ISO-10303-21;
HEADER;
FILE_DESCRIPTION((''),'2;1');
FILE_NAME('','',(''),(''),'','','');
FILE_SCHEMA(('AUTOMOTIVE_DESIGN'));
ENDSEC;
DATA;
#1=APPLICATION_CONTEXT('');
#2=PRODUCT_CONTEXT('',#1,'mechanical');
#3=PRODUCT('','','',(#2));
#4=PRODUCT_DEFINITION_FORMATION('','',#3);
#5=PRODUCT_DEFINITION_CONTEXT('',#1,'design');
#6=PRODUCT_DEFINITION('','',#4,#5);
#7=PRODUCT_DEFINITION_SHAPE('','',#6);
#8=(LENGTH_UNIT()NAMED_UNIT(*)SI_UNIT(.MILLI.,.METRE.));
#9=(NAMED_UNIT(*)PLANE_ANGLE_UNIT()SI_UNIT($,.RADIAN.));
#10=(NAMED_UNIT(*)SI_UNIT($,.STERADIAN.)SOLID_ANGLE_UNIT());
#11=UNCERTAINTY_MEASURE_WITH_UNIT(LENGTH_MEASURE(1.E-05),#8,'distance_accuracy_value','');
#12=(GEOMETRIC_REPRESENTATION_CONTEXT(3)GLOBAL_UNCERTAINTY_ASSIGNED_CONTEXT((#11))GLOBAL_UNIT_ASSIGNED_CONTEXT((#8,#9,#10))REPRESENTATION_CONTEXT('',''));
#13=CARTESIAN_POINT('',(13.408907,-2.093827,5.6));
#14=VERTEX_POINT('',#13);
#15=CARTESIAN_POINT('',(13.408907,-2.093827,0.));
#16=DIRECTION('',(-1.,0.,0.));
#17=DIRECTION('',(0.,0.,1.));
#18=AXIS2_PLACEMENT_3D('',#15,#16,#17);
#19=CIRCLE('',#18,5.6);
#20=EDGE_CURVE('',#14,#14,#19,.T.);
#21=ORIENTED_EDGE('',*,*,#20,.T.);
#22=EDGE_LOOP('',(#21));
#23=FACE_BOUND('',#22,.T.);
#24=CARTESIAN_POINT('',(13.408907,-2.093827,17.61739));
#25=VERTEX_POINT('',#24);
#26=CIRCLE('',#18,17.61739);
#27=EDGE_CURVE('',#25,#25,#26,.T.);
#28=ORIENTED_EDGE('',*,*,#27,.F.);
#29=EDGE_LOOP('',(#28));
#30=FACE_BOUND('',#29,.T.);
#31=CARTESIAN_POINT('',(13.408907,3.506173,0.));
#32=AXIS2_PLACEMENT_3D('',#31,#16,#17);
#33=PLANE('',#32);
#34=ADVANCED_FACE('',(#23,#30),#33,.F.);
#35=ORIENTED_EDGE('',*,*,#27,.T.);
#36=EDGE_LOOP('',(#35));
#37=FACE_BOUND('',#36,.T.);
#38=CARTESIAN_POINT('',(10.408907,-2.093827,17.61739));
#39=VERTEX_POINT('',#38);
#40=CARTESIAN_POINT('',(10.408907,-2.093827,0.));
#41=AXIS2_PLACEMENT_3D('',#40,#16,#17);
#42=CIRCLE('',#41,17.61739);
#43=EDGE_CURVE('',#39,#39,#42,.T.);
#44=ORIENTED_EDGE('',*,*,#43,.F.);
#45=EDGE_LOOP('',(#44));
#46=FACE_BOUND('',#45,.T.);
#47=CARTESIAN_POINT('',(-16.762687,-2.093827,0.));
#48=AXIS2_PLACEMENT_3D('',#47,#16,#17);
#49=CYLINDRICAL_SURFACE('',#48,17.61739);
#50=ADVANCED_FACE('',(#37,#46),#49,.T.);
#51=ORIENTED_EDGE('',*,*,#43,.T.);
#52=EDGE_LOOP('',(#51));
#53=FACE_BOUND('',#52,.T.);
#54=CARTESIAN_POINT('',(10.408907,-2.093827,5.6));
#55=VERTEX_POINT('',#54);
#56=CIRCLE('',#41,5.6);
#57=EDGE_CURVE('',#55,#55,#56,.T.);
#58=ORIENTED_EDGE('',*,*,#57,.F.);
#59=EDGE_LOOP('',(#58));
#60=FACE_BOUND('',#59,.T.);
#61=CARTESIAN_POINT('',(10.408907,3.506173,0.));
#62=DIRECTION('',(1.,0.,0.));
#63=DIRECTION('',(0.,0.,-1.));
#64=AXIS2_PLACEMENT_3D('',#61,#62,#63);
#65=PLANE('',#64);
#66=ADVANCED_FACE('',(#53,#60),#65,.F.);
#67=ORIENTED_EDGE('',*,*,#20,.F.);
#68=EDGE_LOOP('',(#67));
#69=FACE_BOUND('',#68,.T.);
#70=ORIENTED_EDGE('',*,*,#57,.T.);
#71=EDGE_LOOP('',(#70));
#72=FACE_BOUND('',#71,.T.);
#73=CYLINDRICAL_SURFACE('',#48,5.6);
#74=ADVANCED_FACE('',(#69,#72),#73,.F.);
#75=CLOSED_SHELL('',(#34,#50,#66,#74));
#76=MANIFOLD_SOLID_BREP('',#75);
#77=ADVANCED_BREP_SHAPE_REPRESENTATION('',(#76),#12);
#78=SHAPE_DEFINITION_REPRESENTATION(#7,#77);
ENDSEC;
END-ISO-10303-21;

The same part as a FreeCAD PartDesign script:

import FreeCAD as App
import Part
import Sketcher

V = App.Vector

doc = App.newDocument("Part")
body = doc.addObject("PartDesign::Body", "Body")

sketch1 = body.newObject("Sketcher::SketchObject", "Sketch")
sketch1.AttachmentSupport = (doc.getObject("XY_Plane"), [""])
sketch1.MapMode = "FlatFace"
sketch1.addGeometry([
    Part.LineSegment(V(10.4, 15.5, 0), V(10.4, 3.5, 0)),
    Part.LineSegment(V(10.4, 3.5, 0), V(13.4, 3.5, 0)),
    Part.LineSegment(V(13.4, 3.5, 0), V(13.4, 15.5, 0)),
    Part.LineSegment(V(13.4, 15.5, 0), V(10.4, 15.5, 0)),
], False)
sketch1.addGeometry(Part.LineSegment(V(10.4, -2.1, 0), V(13.4, -2.1, 0)), True)
sketch1.addConstraint([
    Sketcher.Constraint("Coincident", 0, 2, 1, 1),
    Sketcher.Constraint("Coincident", 1, 2, 2, 1),
    Sketcher.Constraint("Coincident", 2, 2, 3, 1),
    Sketcher.Constraint("Coincident", 3, 2, 0, 1),
    Sketcher.Constraint("Vertical", 0),
    Sketcher.Constraint("Horizontal", 1),
    Sketcher.Constraint("Vertical", 2),
    Sketcher.Constraint("Horizontal", 3),
    Sketcher.Constraint("Horizontal", 4),
    Sketcher.Constraint("Vertical", 3, 2, 4, 1),
    Sketcher.Constraint("Vertical", 2, 2, 4, 2),
    Sketcher.Constraint("DistanceX", 1, 1, 1, 2, 3.0),
    Sketcher.Constraint("DistanceY", 4, 1, 0, 2, 5.6),
    Sketcher.Constraint("DistanceY", 0, 2, 0, 1, 12.01739),
    Sketcher.Constraint("DistanceX", -1, 1, 0, 2, 10.408907),
    Sketcher.Constraint("DistanceY", -1, 1, 0, 2, 3.506173),
])
revolution = body.newObject("PartDesign::Revolution", "Revolution")
revolution.Profile = sketch1
revolution.ReferenceAxis = (sketch1, ["Axis0"])
revolution.Angle = 360

doc.recompute()
